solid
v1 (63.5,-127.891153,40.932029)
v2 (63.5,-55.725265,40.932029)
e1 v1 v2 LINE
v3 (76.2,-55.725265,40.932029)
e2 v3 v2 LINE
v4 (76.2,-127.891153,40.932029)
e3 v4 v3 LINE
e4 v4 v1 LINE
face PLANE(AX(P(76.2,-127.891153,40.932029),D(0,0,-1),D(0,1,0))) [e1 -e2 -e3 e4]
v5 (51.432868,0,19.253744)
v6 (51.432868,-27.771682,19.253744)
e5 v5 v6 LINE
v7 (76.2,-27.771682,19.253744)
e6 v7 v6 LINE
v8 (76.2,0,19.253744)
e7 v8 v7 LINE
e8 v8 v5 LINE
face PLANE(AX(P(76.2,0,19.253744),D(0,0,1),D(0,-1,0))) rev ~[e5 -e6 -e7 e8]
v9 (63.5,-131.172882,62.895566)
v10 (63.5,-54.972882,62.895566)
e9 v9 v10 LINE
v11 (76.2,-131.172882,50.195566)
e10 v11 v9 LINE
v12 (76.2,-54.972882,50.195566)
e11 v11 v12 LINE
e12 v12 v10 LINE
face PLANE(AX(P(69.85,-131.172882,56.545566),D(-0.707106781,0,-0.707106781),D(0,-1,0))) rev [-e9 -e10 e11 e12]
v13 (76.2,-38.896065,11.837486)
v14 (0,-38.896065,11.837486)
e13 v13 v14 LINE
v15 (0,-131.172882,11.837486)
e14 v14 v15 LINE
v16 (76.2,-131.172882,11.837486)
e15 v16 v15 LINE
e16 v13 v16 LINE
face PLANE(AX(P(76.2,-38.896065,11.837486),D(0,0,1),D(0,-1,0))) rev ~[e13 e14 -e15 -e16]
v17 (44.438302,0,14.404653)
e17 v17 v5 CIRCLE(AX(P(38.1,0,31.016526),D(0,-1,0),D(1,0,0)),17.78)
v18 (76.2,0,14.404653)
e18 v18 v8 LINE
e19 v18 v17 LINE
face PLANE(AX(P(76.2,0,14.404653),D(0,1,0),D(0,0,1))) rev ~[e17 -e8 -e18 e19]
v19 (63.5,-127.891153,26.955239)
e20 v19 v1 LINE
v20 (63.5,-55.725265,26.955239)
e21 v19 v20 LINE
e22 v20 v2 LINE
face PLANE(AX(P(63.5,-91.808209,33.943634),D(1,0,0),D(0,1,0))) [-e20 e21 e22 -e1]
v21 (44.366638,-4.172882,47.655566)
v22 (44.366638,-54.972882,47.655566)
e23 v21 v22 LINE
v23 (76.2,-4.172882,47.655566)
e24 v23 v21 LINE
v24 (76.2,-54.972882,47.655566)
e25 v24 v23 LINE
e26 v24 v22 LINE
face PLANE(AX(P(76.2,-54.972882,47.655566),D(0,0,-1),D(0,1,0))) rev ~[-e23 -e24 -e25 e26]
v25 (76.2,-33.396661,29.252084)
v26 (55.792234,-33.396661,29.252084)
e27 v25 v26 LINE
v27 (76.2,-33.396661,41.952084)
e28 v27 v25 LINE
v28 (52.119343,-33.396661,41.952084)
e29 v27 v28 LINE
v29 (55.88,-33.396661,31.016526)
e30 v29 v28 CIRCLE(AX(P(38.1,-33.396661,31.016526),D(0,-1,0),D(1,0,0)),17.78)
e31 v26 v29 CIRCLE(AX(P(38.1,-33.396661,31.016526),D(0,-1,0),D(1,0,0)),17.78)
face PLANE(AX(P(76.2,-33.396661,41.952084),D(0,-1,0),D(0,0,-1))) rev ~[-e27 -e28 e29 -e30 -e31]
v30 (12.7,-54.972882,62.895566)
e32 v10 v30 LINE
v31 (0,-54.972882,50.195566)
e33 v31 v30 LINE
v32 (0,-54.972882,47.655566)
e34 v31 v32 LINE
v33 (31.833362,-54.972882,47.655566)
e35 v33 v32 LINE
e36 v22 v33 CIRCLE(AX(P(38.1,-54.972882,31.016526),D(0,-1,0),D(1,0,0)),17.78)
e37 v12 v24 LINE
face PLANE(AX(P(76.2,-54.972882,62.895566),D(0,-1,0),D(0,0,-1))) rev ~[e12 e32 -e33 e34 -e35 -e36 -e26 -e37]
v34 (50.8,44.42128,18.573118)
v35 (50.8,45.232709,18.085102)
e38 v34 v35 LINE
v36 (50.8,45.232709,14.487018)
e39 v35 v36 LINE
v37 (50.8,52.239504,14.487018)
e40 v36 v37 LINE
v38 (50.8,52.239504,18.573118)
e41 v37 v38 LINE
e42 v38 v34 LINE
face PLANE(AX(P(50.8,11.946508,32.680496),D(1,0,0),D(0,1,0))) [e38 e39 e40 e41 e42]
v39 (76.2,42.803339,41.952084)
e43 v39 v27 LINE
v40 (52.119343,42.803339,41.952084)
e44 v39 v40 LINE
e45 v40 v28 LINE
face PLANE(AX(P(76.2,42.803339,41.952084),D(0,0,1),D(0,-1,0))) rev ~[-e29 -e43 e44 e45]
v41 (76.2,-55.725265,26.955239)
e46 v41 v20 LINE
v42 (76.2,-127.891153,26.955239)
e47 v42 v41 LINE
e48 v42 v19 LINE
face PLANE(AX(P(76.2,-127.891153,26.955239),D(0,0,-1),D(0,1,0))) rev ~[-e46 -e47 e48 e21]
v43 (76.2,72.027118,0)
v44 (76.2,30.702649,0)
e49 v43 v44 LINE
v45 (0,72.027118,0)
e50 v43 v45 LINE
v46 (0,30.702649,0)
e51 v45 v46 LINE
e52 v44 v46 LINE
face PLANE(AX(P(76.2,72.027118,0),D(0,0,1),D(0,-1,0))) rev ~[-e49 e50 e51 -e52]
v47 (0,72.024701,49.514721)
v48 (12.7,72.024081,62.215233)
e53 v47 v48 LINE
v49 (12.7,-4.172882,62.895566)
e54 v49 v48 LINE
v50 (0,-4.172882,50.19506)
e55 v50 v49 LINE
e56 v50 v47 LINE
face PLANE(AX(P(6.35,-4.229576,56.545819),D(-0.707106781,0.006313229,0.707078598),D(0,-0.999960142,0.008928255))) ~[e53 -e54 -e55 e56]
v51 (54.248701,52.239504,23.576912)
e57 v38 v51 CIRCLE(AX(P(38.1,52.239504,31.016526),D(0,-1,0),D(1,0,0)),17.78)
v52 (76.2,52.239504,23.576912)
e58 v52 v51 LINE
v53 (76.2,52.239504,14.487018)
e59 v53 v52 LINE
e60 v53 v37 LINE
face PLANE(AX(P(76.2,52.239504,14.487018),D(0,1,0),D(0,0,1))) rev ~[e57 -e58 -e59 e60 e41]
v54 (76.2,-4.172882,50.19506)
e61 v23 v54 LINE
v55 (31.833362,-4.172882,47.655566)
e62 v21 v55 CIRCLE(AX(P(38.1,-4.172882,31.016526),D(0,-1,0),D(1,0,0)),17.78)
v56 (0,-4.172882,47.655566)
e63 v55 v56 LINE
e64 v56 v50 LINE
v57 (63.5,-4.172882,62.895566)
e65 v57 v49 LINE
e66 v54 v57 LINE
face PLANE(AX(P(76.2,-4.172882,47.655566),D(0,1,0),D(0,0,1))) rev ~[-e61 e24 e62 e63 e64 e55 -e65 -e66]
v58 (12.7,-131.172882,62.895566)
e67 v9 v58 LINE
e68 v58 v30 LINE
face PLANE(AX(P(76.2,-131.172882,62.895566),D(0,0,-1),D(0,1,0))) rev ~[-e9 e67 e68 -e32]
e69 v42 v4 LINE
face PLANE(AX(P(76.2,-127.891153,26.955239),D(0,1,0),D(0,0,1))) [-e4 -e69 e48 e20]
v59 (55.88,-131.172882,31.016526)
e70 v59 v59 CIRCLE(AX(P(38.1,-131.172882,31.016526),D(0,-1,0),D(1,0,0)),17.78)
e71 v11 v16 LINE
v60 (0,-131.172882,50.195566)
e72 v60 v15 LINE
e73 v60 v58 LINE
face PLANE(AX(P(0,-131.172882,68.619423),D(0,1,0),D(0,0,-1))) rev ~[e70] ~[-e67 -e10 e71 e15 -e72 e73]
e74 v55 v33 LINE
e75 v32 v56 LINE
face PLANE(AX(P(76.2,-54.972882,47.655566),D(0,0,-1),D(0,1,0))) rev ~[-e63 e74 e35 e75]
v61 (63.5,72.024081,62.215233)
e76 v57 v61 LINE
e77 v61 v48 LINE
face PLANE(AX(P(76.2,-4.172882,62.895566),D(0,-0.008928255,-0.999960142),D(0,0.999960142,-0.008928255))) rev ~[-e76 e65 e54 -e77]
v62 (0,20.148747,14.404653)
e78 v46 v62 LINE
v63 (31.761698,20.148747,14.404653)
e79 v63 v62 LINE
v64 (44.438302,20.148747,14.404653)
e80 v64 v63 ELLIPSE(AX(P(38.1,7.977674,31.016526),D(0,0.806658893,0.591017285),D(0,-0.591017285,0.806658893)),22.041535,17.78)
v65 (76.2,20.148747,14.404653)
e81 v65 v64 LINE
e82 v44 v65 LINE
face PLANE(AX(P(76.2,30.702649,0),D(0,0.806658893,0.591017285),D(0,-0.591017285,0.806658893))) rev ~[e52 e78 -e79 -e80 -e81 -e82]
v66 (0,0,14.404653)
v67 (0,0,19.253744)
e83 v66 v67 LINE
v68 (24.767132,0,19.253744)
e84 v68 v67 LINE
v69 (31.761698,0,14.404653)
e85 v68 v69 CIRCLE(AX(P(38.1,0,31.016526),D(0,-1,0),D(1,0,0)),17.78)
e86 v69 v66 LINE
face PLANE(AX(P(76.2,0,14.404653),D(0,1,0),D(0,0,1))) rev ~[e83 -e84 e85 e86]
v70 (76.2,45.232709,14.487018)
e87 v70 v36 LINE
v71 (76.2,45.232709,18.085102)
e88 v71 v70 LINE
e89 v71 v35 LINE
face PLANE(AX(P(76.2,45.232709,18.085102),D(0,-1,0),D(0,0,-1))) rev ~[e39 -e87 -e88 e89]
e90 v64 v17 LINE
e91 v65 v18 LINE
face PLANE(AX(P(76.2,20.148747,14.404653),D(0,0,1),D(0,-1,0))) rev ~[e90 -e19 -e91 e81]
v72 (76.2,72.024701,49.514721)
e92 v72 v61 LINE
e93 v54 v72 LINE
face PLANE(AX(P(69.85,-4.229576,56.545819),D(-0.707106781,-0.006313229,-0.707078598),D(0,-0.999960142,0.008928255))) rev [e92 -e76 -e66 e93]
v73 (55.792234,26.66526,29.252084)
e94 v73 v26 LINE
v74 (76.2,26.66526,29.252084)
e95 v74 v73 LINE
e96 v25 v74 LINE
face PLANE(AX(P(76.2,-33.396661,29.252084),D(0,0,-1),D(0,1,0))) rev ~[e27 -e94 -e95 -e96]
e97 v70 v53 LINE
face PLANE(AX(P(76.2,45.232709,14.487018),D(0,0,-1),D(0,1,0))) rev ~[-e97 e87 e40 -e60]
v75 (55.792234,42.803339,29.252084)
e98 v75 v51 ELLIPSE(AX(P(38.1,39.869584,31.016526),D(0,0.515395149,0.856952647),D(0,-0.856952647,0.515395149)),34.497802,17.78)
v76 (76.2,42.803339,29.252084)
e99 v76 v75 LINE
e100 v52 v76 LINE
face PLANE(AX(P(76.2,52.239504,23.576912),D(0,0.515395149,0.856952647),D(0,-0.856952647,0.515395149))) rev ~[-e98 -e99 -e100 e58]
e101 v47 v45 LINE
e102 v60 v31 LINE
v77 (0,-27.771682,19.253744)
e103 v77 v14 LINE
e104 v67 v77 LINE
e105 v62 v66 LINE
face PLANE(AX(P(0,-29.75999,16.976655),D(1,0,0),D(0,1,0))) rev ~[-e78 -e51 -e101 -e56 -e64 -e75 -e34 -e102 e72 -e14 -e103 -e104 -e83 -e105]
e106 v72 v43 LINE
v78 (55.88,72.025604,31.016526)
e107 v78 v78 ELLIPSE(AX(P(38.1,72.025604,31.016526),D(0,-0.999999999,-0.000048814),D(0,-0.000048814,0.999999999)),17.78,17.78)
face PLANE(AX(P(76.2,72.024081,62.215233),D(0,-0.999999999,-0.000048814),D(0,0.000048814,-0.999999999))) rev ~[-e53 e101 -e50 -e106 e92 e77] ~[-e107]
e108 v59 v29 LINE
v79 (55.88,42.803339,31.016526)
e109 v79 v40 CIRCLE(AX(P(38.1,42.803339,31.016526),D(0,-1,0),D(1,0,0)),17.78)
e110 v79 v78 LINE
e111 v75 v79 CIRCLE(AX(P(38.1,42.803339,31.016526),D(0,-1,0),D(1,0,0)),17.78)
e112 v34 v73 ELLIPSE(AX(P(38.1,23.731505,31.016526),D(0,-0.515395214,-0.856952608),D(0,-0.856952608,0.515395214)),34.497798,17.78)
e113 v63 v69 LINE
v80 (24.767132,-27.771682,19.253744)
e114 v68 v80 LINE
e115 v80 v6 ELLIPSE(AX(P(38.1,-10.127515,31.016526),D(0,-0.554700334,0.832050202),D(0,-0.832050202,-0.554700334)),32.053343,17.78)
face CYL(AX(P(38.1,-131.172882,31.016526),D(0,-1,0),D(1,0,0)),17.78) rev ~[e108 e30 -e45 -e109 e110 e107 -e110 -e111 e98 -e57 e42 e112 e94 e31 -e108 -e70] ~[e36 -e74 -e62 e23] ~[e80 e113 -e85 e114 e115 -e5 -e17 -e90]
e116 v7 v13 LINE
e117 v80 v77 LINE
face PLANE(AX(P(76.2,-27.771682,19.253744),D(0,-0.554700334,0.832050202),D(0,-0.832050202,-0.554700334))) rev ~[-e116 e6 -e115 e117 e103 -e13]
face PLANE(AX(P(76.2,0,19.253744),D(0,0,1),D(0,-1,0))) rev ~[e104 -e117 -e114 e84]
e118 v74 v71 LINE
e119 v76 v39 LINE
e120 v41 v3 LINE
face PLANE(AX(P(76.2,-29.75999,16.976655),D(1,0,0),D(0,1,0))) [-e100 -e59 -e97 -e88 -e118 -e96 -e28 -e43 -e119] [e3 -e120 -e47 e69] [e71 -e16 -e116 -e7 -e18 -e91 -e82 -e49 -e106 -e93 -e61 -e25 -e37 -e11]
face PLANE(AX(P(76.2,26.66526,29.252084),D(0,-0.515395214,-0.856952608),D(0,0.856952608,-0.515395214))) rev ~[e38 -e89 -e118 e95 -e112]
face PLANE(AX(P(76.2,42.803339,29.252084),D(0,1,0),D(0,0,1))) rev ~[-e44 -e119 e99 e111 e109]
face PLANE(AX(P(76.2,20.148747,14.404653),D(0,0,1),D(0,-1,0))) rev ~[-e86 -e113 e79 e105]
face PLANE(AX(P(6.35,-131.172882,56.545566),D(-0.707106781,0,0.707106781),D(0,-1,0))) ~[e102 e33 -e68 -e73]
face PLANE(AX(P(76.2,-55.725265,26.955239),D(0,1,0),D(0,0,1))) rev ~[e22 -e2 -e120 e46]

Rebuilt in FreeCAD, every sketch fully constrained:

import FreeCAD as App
import Part
import Sketcher

V = App.Vector
Q = App.Units.Quantity


def edges_at(feature, points):
    """Names of the edges that pass closest to the given points."""
    edges = feature.Shape.Edges
    near = lambda p: min(range(len(edges)), key=lambda i: edges[i].distToShape(Part.Vertex(*p))[0])
    return sorted({f"Edge{near(p) + 1}" for p in points})


def add_polygon(sketch, points):
    """Adds a closed chain of lines whose ends are joined by coincident constraints."""
    first, n = sketch.GeometryCount, len(points)
    for a, b in zip(points, points[1:] + points[:1]):
        sketch.addGeometry(Part.LineSegment(App.Vector(*a, 0), App.Vector(*b, 0)), False)
    for i in range(n):
        sketch.addConstraint(Sketcher.Constraint("Coincident", first + i, 2, first + (i + 1) % n, 1))

doc = App.newDocument("Part")
body = doc.addObject("PartDesign::Body", "Body")

sketch1 = body.newObject("Sketcher::SketchObject", "Sketch")
sketch1.AttachmentSupport = (doc.getObject("YZ_Plane"), [""])
sketch1.MapMode = "FlatFace"
add_polygon(sketch1, [(72.027118, 67.494695), (-131.172882, 68.619423), (-131.172882, -34.105305), (72.027118, -34.105305)])
sketch1.addConstraint([
    Sketcher.Constraint("Vertical", 1),
    Sketcher.Constraint("Horizontal", 2),
    Sketcher.Constraint("Vertical", 3),
    Sketcher.Constraint("DistanceX", 2, 1, 2, 2, Q("8 in")),
    Sketcher.Constraint("DistanceY", 3, 1, 3, 2, Q("4 in")),
    Sketcher.Constraint("DistanceY", 1, 2, 1, 1, 102.724728),
    Sketcher.Constraint("DistanceX", 0, 2, -1, 1, 131.172882),
    Sketcher.Constraint("DistanceY", -1, 1, 0, 2, 68.619423),
])
pad1 = body.newObject("PartDesign::Pad", "Pad")
pad1.Profile = sketch1
pad1.Length = Q("3 in")

sketch2 = body.newObject("Sketcher::SketchObject", "Sketch001")
sketch2.AttachmentSupport = (doc.getObject("YZ_Plane"), [""])
sketch2.MapMode = "FlatFace"
sketch2.AttachmentOffset = App.Placement(V(0, 0, 3 * 25.4), App.Rotation())
add_polygon(sketch2, [(-38.896065, 11.837486), (-131.172882, 11.837486), (-131.172882, -34.105305), (72.027118, -34.105305), (72.027118, 0), (30.702649, 0), (20.148747, 14.404653), (0, 14.404653), (0, 19.253744), (-27.771682, 19.253744)])
add_polygon(sketch2, [(-131.172882, 68.619423), (-131.172882, 62.895566), (-54.972882, 62.895566), (-54.972882, 47.655566), (-4.172882, 47.655566), (-4.172882, 62.895566), (72.024081, 62.215233), (72.027118, 0), (72.027118, 67.494695)])
sketch2.addConstraint([
    Sketcher.Constraint("Horizontal", 0),
    Sketcher.Constraint("Vertical", 1),
    Sketcher.Constraint("Horizontal", 2),
    Sketcher.Constraint("Vertical", 3),
    Sketcher.Constraint("Horizontal", 4),
    Sketcher.Constraint("Horizontal", 6),
    Sketcher.Constraint("Vertical", 7),
    Sketcher.Constraint("Horizontal", 8),
    Sketcher.Constraint("Vertical", 10),
    Sketcher.Constraint("Horizontal", 11),
    Sketcher.Constraint("Vertical", 12),
    Sketcher.Constraint("Horizontal", 13),
    Sketcher.Constraint("Vertical", 14),
    Sketcher.Constraint("Vertical", 17),
    Sketcher.Constraint("Coincident", 16, 2, 3, 2),
    Sketcher.Constraint("PointOnObject", 3, 2, -1),
    Sketcher.Constraint("PointOnObject", 6, 2, -2),
    Sketcher.Constraint("Horizontal", 11, 2, 14, 2),
    Sketcher.Constraint("Vertical", 1, 2, 10, 2),
    Sketcher.Constraint("DistanceX", 2, 1, 2, 2, Q("8 in")),
    Sketcher.Constraint("DistanceX", 11, 1, 11, 2, Q("3 in")),
    Sketcher.Constraint("DistanceX", 13, 1, 13, 2, Q("2 in")),
    Sketcher.Constraint("Distance", 15, Q("3 in")),
    Sketcher.Constraint("DistanceY", 12, 2, 12, 1, Q("0.6 in")),
    Sketcher.Constraint("DistanceX", 4, 2, 4, 1, 41.324469),
    Sketcher.Constraint("DistanceX", 8, 2, 8, 1, 27.771682),
    Sketcher.Constraint("DistanceY", 1, 2, 1, 1, 45.942791),
    Sketcher.Constraint("DistanceY", 7, 1, 7, 2, 4.849091),
    Sketcher.Constraint("DistanceX", 8, 2, 3, 2, 99.7988),
    Sketcher.Constraint("Distance", 5, 17.85718),
    Sketcher.Constraint("DistanceX", 0, 2, 0, 1, 92.276817),
    Sketcher.Constraint("DistanceX", 6, 2, 6, 1, 20.148747),
    Sketcher.Constraint("DistanceY", 3, 1, 3, 2, 34.105305),
    Sketcher.Constraint("DistanceY", 10, 2, 10, 1, 5.723857),
    Sketcher.Constraint("DistanceY", 17, 1, 17, 2, 67.494695),
    Sketcher.Constraint("DistanceX", -1, 1, 15, 2, 72.024081),
    Sketcher.Constraint("DistanceY", 0, 2, 10, 2, 51.05808),
])
pocket1 = body.newObject("PartDesign::Pocket", "Pocket")
pocket1.Profile = sketch2
pocket1.Length = Q("5 in")
doc.recompute()

chamfer = body.newObject("PartDesign::Chamfer", "Chamfer")
chamfer.Base = (pocket1, edges_at(pocket1, [
    (76.2, -93.073, 62.896),
    (76.2, 33.926, 62.555),
    (0, -93.073, 62.896),
    (0, 33.926, 62.555),
]))
chamfer.Size = Q("0.5 in")

sketch3 = body.newObject("Sketcher::SketchObject", "Sketch002")
sketch3.AttachmentSupport = (doc.getObject("XZ_Plane"), [""])
sketch3.MapMode = "FlatFace"
sketch3.AttachmentOffset = App.Placement(V(0, 0, 131.172882), App.Rotation())
sketch3.addGeometry(Part.Circle(V(38.1, 31.016526, 0), V(0, 0, 1), 17.78), False)
sketch3.addConstraint([
    Sketcher.Constraint("Diameter", 0, Q("1.4 in")),
    Sketcher.Constraint("DistanceX", -1, 1, 0, 3, Q("1.5 in")),
    Sketcher.Constraint("DistanceY", -1, 1, 0, 3, 31.016526),
])
pocket2 = body.newObject("PartDesign::Pocket", "Pocket001")
pocket2.Profile = sketch3
pocket2.Length = Q("10 in")

sketch4 = body.newObject("Sketcher::SketchObject", "Sketch003")
sketch4.AttachmentSupport = (doc.getObject("YZ_Plane"), [""])
sketch4.MapMode = "FlatFace"
sketch4.AttachmentOffset = App.Placement(V(0, 0, 3 * 25.4), App.Rotation())
add_polygon(sketch4, [(42.803339, 41.952084), (-33.396661, 41.952084), (-33.396661, 29.252084), (26.66526, 29.252084), (45.232709, 18.085102), (45.232709, 14.487018), (52.239504, 14.487018), (52.239504, 23.576912), (42.803339, 29.252084)])
sketch4.addConstraint([
    Sketcher.Constraint("Horizontal", 0),
    Sketcher.Constraint("Vertical", 1),
    Sketcher.Constraint("Horizontal", 2),
    Sketcher.Constraint("Vertical", 4),
    Sketcher.Constraint("Horizontal", 5),
    Sketcher.Constraint("Vertical", 6),
    Sketcher.Constraint("Vertical", 8),
    Sketcher.Constraint("Parallel", 3, 7),
    Sketcher.Constraint("Horizontal", 2, 2, 7, 2),
    Sketcher.Constraint("DistanceX", 0, 2, 0, 1, Q("3 in")),
    Sketcher.Constraint("DistanceY", 1, 2, 1, 1, Q("0.5 in")),
    Sketcher.Constraint("DistanceX", 2, 1, 2, 2, 60.061921),
    Sketcher.Constraint("DistanceY", -1, 1, 3, 2, 18.085102),
    Sketcher.Constraint("DistanceX", 5, 1, 5, 2, 7.006795),
    Sketcher.Constraint("DistanceY", 4, 2, 4, 1, 3.598084),
    Sketcher.Constraint("DistanceY", 6, 1, 6, 2, 9.089894),
    Sketcher.Constraint("DistanceX", 0, 2, -1, 1, 33.396661),
    Sketcher.Constraint("DistanceX", -1, 1, 3, 2, 45.232709),
])
pocket3 = body.newObject("PartDesign::Pocket", "Pocket002")
pocket3.Profile = sketch4
pocket3.Length = Q("1 in")

sketch5 = body.newObject("Sketcher::SketchObject", "Sketch004")
sketch5.AttachmentSupport = (doc.getObject("YZ_Plane"), [""])
sketch5.MapMode = "FlatFace"
sketch5.AttachmentOffset = App.Placement(V(0, 0, 3 * 25.4), App.Rotation())
add_polygon(sketch5, [(-127.891153, 40.932029), (-127.891153, 26.955239), (-55.725265, 26.955239), (-55.725265, 40.932029)])
sketch5.addConstraint([
    Sketcher.Constraint("Vertical", 0),
    Sketcher.Constraint("Horizontal", 1),
    Sketcher.Constraint("Vertical", 2),
    Sketcher.Constraint("Horizontal", 3),
    Sketcher.Constraint("DistanceY", 0, 2, 0, 1, 13.97679),
    Sketcher.Constraint("DistanceX", 1, 1, 1, 2, 72.165888),
    Sketcher.Constraint("DistanceY", -1, 1, 0, 2, 26.955239),
    Sketcher.Constraint("DistanceX", 0, 2, -1, 1, 127.891153),
])
pocket4 = body.newObject("PartDesign::Pocket", "Pocket003")
pocket4.Profile = sketch5
pocket4.Length = Q("0.5 in")

doc.recompute()
